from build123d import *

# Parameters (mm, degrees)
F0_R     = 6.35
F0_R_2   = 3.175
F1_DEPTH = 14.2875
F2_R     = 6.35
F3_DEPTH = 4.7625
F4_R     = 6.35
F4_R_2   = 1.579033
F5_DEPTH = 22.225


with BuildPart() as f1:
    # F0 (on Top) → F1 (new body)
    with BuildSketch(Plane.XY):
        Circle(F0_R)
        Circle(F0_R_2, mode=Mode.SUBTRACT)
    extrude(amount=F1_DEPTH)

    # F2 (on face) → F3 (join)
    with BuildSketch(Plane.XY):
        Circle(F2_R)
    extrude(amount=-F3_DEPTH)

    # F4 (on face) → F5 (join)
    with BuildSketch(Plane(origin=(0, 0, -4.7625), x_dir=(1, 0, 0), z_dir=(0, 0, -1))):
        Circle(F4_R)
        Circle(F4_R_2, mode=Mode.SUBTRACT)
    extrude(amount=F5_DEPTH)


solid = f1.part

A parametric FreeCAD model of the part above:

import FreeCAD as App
import Part
import Sketcher

V = App.Vector
Q = App.Units.Quantity

doc = App.newDocument("Part")
body = doc.addObject("PartDesign::Body", "Body")

# Sketch on XY plane
sketch1 = body.newObject("Sketcher::SketchObject", "Sketch")
sketch1.AttachmentSupport = (doc.getObject("XY_Plane"), [""])
sketch1.MapMode = "FlatFace"
sketch1.addGeometry([
    Part.Circle(V(0, 0, 0), V(0, 0, 1), 6.3),
    Part.Circle(V(0, 0, 0), V(0, 0, 1), 3.2),
], False)
sketch1.addConstraint([
    Sketcher.Constraint("Coincident", 0, 3, -1, 1),
    Sketcher.Constraint("Coincident", 1, 3, -1, 1),
    Sketcher.Constraint("Diameter", 0, Q("0.5 in")),
    Sketcher.Constraint("Diameter", 1, Q("0.25 in")),
])
pad1 = body.newObject("PartDesign::Pad", "Pad")
pad1.Profile = sketch1
pad1.Length = Q("0.5625 in")

# Sketch on XY plane
sketch2 = body.newObject("Sketcher::SketchObject", "Sketch001")
sketch2.AttachmentSupport = (doc.getObject("XY_Plane"), [""])
sketch2.MapMode = "FlatFace"
sketch2.addGeometry(Part.Circle(V(0, 0, 0), V(0, 0, 1), 6), False)
sketch2.addConstraint([
    Sketcher.Constraint("Coincident", 0, 3, -1, 1),
    Sketcher.Constraint("Diameter", 0, Q("0.5 in")),
])
pad2 = body.newObject("PartDesign::Pad", "Pad001")
pad2.Profile = sketch2
pad2.Length = Q("0.1875 in")
pad2.Reversed = True

# Sketch on XY plane
sketch3 = body.newObject("Sketcher::SketchObject", "Sketch002")
sketch3.AttachmentSupport = (doc.getObject("XY_Plane"), [""])
sketch3.MapMode = "FlatFace"
sketch3.AttachmentOffset = App.Placement(V(0, 0, -0.1875 * 25.4), App.Rotation())
sketch3.addGeometry([
    Part.Circle(V(0, 0, 0), V(0, 0, 1), 6.3),
    Part.Circle(V(0, 0, 0), V(0, 0, 1), 1.6),
], False)
sketch3.addConstraint([
    Sketcher.Constraint("Coincident", 0, 3, -1, 1),
    Sketcher.Constraint("Coincident", 1, 3, -1, 1),
    Sketcher.Constraint("Diameter", 0, Q("0.5 in")),
    Sketcher.Constraint("Diameter", 1, Q("3.158066 mm")),
])
pad3 = body.newObject("PartDesign::Pad", "Pad002")
pad3.Profile = sketch3
pad3.Length = Q("0.875 in")
pad3.Reversed = True

doc.recompute()
